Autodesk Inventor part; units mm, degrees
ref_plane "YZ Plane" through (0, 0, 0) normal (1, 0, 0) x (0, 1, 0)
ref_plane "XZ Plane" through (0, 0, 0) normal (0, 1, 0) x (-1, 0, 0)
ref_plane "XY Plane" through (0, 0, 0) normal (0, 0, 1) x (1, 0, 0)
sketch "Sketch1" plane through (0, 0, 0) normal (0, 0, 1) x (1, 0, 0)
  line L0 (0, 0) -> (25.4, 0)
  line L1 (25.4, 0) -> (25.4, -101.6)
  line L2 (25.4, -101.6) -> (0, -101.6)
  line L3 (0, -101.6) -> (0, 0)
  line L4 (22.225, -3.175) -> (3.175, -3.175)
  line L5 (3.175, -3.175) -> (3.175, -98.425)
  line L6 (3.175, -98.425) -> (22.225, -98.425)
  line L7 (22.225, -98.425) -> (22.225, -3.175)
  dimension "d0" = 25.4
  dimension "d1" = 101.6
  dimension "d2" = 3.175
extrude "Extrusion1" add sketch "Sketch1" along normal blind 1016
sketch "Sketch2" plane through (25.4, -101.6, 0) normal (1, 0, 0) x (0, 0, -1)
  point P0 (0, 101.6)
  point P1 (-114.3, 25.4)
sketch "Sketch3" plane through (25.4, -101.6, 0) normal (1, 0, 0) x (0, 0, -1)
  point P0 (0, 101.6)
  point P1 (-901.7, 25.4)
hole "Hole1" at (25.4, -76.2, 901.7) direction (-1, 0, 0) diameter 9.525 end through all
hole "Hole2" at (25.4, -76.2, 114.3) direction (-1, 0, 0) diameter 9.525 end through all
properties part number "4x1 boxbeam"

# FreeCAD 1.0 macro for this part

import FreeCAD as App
import Part
import Sketcher
from FreeCAD import Vector
Q = App.Units.Quantity

doc = App.newDocument("Part")
body = doc.addObject("PartDesign::Body", "Body")

# Sketch on XY plane
sketch1 = body.newObject("Sketcher::SketchObject", "Sketch")
sketch1.AttachmentSupport = (doc.getObject("XY_Plane"), [""])
sketch1.MapMode = "FlatFace"
sketch1.addGeometry([
    Part.LineSegment(Vector(25, 0, 0), Vector(0, 0, 0)),  # 0
    Part.LineSegment(Vector(0, 0, 0), Vector(0, -102, 0)),  # 1
    Part.LineSegment(Vector(0, -102, 0), Vector(25, -102, 0)),  # 2
    Part.LineSegment(Vector(25, -102, 0), Vector(25, 0, 0)),  # 3
    Part.LineSegment(Vector(3, -3, 0), Vector(22, -3, 0)),  # 4
    Part.LineSegment(Vector(22, -3, 0), Vector(22, -98, 0)),  # 5
    Part.LineSegment(Vector(22, -98, 0), Vector(3, -98, 0)),  # 6
    Part.LineSegment(Vector(3, -98, 0), Vector(3, -3, 0)),  # 7
], False)
sketch1.addConstraint([
    Sketcher.Constraint("Coincident", 0, 2, 1, 1),
    Sketcher.Constraint("Coincident", 1, 2, 2, 1),
    Sketcher.Constraint("Coincident", 2, 2, 3, 1),
    Sketcher.Constraint("Coincident", 3, 2, 0, 1),
    Sketcher.Constraint("Coincident", 4, 2, 5, 1),
    Sketcher.Constraint("Coincident", 5, 2, 6, 1),
    Sketcher.Constraint("Coincident", 6, 2, 7, 1),
    Sketcher.Constraint("Coincident", 7, 2, 4, 1),
    Sketcher.Constraint("Horizontal", 0),
    Sketcher.Constraint("Vertical", 1),
    Sketcher.Constraint("Horizontal", 2),
    Sketcher.Constraint("Vertical", 3),
    Sketcher.Constraint("Horizontal", 4),
    Sketcher.Constraint("Vertical", 5),
    Sketcher.Constraint("Horizontal", 6),
    Sketcher.Constraint("Vertical", 7),
    Sketcher.Constraint("Coincident", 0, 2, -1, 1),
    Sketcher.Constraint("DistanceX", 0, 2, 0, 1, Q("1 in")),
    Sketcher.Constraint("DistanceY", 1, 2, 1, 1, Q("4 in")),
    Sketcher.Constraint("DistanceY", 4, 2, -1, 1, Q("0.125 in")),
    Sketcher.Constraint("DistanceX", -1, 1, 6, 2, Q("0.125 in")),
    Sketcher.Constraint("DistanceX", 4, 2, 3, 2, Q("0.125 in")),
    Sketcher.Constraint("DistanceY", 2, 2, 5, 2, Q("0.125 in")),
])
pad1 = body.newObject("PartDesign::Pad", "Pad")
pad1.Profile = sketch1
pad1.Length = Q("40 in")

# Sketch on YZ plane
sketch2 = body.newObject("Sketcher::SketchObject", "Sketch001")
sketch2.AttachmentSupport = (doc.getObject("YZ_Plane"), [""])
sketch2.MapMode = "FlatFace"
sketch2.AttachmentOffset = App.Placement(Vector(0, 0, 1 * 25.4), App.Rotation())
sketch2.addGeometry(Part.Circle(Vector(-76.2, 901.7, 0), Vector(0, 0, 1), 4.8), False)
sketch2.addConstraint([
    Sketcher.Constraint("Diameter", 0, Q("0.375 in")),
    Sketcher.Constraint("DistanceX", 0, 3, -1, 1, Q("3 in")),
    Sketcher.Constraint("DistanceY", -1, 1, 0, 3, Q("35.5 in")),
])
doc.recompute()
hole = body.newObject("PartDesign::Hole", "Hole")
hole.Profile = sketch2
hole.ThreadType = "None"
hole.Diameter = Q("0.375 in")
hole.DepthType = "ThroughAll"

# Sketch on YZ plane
sketch3 = body.newObject("Sketcher::SketchObject", "Sketch002")
sketch3.AttachmentSupport = (doc.getObject("YZ_Plane"), [""])
sketch3.MapMode = "FlatFace"
sketch3.AttachmentOffset = App.Placement(Vector(0, 0, 1 * 25.4), App.Rotation())
sketch3.addGeometry(Part.Circle(Vector(-76.2, 114.3, 0), Vector(0, 0, 1), 4.8), False)
sketch3.addConstraint([
    Sketcher.Constraint("Diameter", 0, Q("0.375 in")),
    Sketcher.Constraint("DistanceX", 0, 3, -1, 1, Q("3 in")),
    Sketcher.Constraint("DistanceY", -1, 1, 0, 3, Q("4.5 in")),
])
doc.recompute()
hole2 = body.newObject("PartDesign::Hole", "Hole001")
hole2.Profile = sketch3
hole2.ThreadType = "None"
hole2.Diameter = Q("0.375 in")
hole2.DepthType = "ThroughAll"

doc.recompute()
